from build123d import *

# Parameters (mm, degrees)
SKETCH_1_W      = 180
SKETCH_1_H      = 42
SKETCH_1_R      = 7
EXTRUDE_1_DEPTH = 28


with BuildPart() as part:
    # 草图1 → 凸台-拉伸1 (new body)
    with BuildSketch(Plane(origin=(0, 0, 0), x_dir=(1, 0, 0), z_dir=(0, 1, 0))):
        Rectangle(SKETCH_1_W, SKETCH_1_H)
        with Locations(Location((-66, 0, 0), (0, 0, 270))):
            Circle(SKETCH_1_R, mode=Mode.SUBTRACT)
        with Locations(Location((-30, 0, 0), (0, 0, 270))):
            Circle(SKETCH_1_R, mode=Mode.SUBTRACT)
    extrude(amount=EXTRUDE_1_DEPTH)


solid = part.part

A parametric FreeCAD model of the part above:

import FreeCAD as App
import Part
import Sketcher

V = App.Vector


def add_polygon(sketch, points):
    """Adds a closed chain of lines whose ends are joined by coincident constraints."""
    first, n = sketch.GeometryCount, len(points)
    for a, b in zip(points, points[1:] + points[:1]):
        sketch.addGeometry(Part.LineSegment(App.Vector(*a, 0), App.Vector(*b, 0)), False)
    for i in range(n):
        sketch.addConstraint(Sketcher.Constraint("Coincident", first + i, 2, first + (i + 1) % n, 1))

doc = App.newDocument("Part")
body = doc.addObject("PartDesign::Body", "Body")

sketch1 = body.newObject("Sketcher::SketchObject", "Sketch")
sketch1.AttachmentSupport = (doc.getObject("XZ_Plane"), [""])
sketch1.MapMode = "FlatFace"
add_polygon(sketch1, [(-90, -21), (-90, 21), (90, 21), (90, -21)])
sketch1.addGeometry(Part.Circle(V(-66, 0, 0), V(0, 0, 1), 7), False)
sketch1.addGeometry(Part.Circle(V(-30, 0, 0), V(0, 0, 1), 7), False)
sketch1.addConstraint(Sketcher.Constraint("Vertical", 0))
sketch1.addConstraint(Sketcher.Constraint("Horizontal", 1))
sketch1.addConstraint(Sketcher.Constraint("Vertical", 2))
sketch1.addConstraint(Sketcher.Constraint("Horizontal", 3))
sketch1.addConstraint(Sketcher.Constraint("Equal", 4, 5))
sketch1.addConstraint(Sketcher.Constraint("Symmetric", 0, 2, 2, 2, -1, 1))
sketch1.addConstraint(Sketcher.Constraint("PointOnObject", 4, 3, -1))
sketch1.addConstraint(Sketcher.Constraint("PointOnObject", 5, 3, -1))
sketch1.addConstraint(Sketcher.Constraint("Diameter", 4, 14.0))
sketch1.addConstraint(Sketcher.Constraint("DistanceX", 1, 1, 1, 2, 180.0))
sketch1.addConstraint(Sketcher.Constraint("DistanceY", 0, 1, 0, 2, 42.0))
sketch1.addConstraint(Sketcher.Constraint("DistanceX", 4, 3, -1, 1, 66.0))
sketch1.addConstraint(Sketcher.Constraint("DistanceX", 5, 3, -1, 1, 30.0))
pad1 = body.newObject("PartDesign::Pad", "Pad")
pad1.Profile = sketch1
pad1.Length = 28
pad1.Reversed = True

doc.recompute()
